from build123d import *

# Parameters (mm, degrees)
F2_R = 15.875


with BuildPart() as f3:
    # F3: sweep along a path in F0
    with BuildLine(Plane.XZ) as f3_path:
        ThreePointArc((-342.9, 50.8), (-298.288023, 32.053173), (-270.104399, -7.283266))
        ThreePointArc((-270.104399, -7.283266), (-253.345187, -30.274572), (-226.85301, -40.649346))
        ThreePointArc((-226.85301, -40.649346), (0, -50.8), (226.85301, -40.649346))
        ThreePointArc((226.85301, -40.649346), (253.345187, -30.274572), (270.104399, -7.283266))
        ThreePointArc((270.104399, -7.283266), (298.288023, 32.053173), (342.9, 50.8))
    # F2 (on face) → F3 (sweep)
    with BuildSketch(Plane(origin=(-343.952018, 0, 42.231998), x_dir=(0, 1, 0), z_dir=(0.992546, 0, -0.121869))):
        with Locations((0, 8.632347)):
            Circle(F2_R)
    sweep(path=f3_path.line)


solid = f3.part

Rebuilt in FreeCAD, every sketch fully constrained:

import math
import FreeCAD as App
import Part
import Sketcher
from FreeCAD import Vector
Q = App.Units.Quantity

doc = App.newDocument("Part")
params = doc.addObject("Spreadsheet::Sheet", "Params")
for row, (alias, value) in enumerate([
    ("sketch1_diameter", "1.25 in"),
    ("sketch2_radius", "2.0000001 in"),
    ("sketch2_radius2", "3.5 in"),
], start=1):
    params.set(f"A{row}", alias)
    params.set(f"B{row}", "=" + value)
    params.setAlias(f"B{row}", alias)

body = doc.addObject("PartDesign::Body", "Body")

sketch1 = body.newObject("Sketcher::SketchObject", "Sketch")
sketch1.Placement = App.Placement(Vector(-343.952018, 0, 42.231998), App.Rotation(Vector(0, 1, 0), Vector(0.121869023, 0, 0.992546191), Vector(0.992546191, 0, -0.121869023), "ZXY"))
sketch1.addGeometry(Part.Circle(Vector(0, 9, 0), Vector(0, 0, 1), 16), False)
sketch1.addConstraint([
    Sketcher.Constraint("PointOnObject", 0, 3, -2),
    Sketcher.Constraint("Diameter", 0, Q("1.25 in")),
    Sketcher.Constraint("DistanceY", -1, 1, 0, 3, 8.632347),
])
sketch1.setExpression("Constraints[1]", "Params.sketch1_diameter")

sketch2 = body.newObject("Sketcher::SketchObject", "Sketch001")
sketch2.AttachmentSupport = (doc.getObject("XZ_Plane"), [""])
sketch2.MapMode = "FlatFace"
sketch2.addGeometry([
    Part.ArcOfCircle(Part.Circle(Vector(-354, -37, 0), Vector(0, 0, 1), 89), math.radians(20), math.radians(83)),
    Part.ArcOfCircle(Part.Circle(Vector(-222, 10, 0), Vector(0, 0, 1), 51), math.radians(-160), math.radians(-95)),
    Part.ArcOfCircle(Part.Circle(Vector(0, 2489, 0), Vector(0, 0, 1), 2540), math.radians(-95.12), math.radians(-84.88)),
    Part.ArcOfCircle(Part.Circle(Vector(222, 10, 0), Vector(0, 0, 1), 51), math.radians(-85), math.radians(-20)),
    Part.ArcOfCircle(Part.Circle(Vector(354, -37, 0), Vector(0, 0, 1), 89), math.radians(97), math.radians(160)),
], False)
sketch2.addConstraint([
    Sketcher.Constraint("Tangent", 0, 1, 1, 1),
    Sketcher.Constraint("Tangent", 1, 2, 2, 1),
    Sketcher.Constraint("Tangent", 2, 2, 3, 1),
    Sketcher.Constraint("Tangent", 3, 2, 4, 2),
    Sketcher.Constraint("Equal", 1, 3),
    Sketcher.Constraint("Equal", 0, 4),
    Sketcher.Constraint("Symmetric", 1, 3, 3, 3, -2),
    Sketcher.Constraint("Symmetric", 0, 2, 4, 1, -2),
    Sketcher.Constraint("Radius", 1, Q("2.0000001 in")),
    Sketcher.Constraint("Radius", 0, Q("3.5 in")),
    Sketcher.Constraint("DistanceY", -1, 1, 0, 2, Q("2 in")),
    Sketcher.Constraint("DistanceX", 0, 2, -1, 1, Q("13.5 in")),
    Sketcher.Constraint("Radius", 2, 2540.000079),
    Sketcher.Constraint("DistanceX", 0, 1, -1, 1, 270.104399),
    Sketcher.Constraint("DistanceX", 1, 3, -1, 1, 222.315948),
])
sketch2.setExpression("Constraints[8]", "Params.sketch2_radius")
sketch2.setExpression("Constraints[9]", "Params.sketch2_radius2")
doc.recompute()

additivepipe = body.newObject("PartDesign::AdditivePipe", "AdditivePipe")
additivepipe.Profile = sketch1
additivepipe.Spine = (sketch2, ["Edge1", "Edge2", "Edge3", "Edge4", "Edge5"])

doc.recompute()
